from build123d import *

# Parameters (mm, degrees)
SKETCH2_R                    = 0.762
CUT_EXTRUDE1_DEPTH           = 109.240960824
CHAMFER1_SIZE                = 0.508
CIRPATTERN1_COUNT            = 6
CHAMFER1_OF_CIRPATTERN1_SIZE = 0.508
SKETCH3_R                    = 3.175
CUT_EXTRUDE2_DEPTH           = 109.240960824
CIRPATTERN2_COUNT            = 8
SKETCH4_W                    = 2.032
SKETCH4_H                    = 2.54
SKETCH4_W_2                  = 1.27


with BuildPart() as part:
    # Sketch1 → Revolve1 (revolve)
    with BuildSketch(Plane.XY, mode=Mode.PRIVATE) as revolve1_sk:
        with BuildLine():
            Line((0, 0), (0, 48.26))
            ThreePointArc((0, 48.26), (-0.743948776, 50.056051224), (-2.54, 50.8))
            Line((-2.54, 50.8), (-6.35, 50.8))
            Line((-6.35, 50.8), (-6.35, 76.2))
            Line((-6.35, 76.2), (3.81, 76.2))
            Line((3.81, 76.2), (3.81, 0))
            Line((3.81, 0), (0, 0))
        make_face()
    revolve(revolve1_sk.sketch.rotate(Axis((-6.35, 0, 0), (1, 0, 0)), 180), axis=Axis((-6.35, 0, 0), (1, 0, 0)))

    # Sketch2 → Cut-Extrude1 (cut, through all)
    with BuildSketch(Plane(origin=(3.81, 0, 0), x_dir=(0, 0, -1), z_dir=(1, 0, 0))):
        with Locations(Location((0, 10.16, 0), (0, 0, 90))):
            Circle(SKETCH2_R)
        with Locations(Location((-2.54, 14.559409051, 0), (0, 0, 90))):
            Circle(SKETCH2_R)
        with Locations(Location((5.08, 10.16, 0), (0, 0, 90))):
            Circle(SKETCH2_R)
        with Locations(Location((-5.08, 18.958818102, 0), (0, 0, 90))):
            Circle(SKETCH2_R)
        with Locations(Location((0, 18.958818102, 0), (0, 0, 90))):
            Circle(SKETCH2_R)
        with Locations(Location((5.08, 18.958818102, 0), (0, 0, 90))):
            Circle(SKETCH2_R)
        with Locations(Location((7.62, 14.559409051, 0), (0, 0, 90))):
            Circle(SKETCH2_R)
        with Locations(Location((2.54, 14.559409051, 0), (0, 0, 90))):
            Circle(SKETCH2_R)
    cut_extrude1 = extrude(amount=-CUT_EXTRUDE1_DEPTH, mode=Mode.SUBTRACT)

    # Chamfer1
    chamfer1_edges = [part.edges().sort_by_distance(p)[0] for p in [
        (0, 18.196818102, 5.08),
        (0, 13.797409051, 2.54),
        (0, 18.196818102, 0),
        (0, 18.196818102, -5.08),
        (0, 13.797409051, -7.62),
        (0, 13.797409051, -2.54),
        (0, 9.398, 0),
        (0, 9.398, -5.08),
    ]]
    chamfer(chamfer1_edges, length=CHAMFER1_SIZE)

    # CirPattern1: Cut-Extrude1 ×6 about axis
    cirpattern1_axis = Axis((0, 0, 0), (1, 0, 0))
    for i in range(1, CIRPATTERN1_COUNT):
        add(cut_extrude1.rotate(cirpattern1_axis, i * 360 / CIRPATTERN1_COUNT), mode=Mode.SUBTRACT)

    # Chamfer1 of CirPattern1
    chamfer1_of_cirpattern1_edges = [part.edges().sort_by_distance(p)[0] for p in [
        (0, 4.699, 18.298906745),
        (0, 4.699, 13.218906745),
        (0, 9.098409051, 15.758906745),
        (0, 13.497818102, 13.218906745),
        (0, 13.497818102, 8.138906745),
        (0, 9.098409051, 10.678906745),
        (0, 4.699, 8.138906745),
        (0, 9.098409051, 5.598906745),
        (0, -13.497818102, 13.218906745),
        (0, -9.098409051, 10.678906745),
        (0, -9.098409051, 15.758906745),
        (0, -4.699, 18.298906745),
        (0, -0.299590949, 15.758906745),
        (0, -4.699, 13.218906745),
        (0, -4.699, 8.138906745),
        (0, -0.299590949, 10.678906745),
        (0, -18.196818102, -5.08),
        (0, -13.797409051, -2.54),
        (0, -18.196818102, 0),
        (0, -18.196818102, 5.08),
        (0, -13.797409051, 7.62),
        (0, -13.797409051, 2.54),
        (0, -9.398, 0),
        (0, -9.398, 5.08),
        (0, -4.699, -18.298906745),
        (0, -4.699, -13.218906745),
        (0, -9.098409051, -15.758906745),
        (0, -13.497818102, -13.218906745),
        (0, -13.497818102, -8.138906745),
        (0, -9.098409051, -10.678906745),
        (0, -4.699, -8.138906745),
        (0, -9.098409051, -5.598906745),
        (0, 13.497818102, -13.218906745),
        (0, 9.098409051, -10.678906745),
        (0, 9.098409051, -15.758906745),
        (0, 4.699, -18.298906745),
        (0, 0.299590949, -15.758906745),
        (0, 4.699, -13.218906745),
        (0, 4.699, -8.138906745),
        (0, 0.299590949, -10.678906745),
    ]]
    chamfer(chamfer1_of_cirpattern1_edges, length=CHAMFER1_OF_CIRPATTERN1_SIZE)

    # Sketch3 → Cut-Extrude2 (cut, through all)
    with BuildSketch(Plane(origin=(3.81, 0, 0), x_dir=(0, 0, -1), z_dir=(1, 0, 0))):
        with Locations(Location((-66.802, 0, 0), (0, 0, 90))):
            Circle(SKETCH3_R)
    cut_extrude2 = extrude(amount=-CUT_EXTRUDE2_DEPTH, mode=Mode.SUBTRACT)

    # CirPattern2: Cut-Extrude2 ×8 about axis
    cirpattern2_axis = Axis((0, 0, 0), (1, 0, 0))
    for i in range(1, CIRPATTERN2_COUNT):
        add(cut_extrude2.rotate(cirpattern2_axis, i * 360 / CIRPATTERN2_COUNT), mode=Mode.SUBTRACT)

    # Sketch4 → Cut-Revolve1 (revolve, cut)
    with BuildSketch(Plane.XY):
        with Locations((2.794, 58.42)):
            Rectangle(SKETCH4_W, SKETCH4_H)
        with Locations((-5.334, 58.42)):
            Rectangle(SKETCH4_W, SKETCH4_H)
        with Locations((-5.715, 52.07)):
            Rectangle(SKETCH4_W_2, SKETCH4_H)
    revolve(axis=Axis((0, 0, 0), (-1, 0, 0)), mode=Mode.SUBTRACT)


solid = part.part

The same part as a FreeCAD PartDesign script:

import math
import FreeCAD as App
import Part
import Sketcher
Q = App.Units.Quantity


def edges_at(feature, points):
    """Names of the edges that pass closest to the given points."""
    edges = feature.Shape.Edges
    near = lambda p: min(range(len(edges)), key=lambda i: edges[i].distToShape(Part.Vertex(*p))[0])
    return sorted({f"Edge{near(p) + 1}" for p in points})


def add_polygon(sketch, points):
    """Adds a closed chain of lines whose ends are joined by coincident constraints."""
    first, n = sketch.GeometryCount, len(points)
    for a, b in zip(points, points[1:] + points[:1]):
        sketch.addGeometry(Part.LineSegment(App.Vector(*a, 0), App.Vector(*b, 0)), False)
    for i in range(n):
        sketch.addConstraint(Sketcher.Constraint("Coincident", first + i, 2, first + (i + 1) % n, 1))

doc = App.newDocument("Part")
body = doc.addObject("PartDesign::Body", "Body")

# Sketch on XY plane
sketch1 = body.newObject("Sketcher::SketchObject", "Sketch")
sketch1.AttachmentSupport = (doc.getObject("XY_Plane"), [""])
sketch1.MapMode = "FlatFace"
sketch1.addGeometry([
    Part.LineSegment(App.Vector(0, 48.3, 0), App.Vector(0, 0, 0)),  # 0
    Part.LineSegment(App.Vector(0, 0, 0), App.Vector(3.8, 0, 0)),  # 1
    Part.LineSegment(App.Vector(3.8, 0, 0), App.Vector(3.8, 76.2, 0)),  # 2
    Part.LineSegment(App.Vector(3.8, 76.2, 0), App.Vector(-6.3, 76.2, 0)),  # 3
    Part.LineSegment(App.Vector(-6.3, 76.2, 0), App.Vector(-6.3, 50.8, 0)),  # 4
    Part.LineSegment(App.Vector(-6.3, 50.8, 0), App.Vector(-2.5, 50.8, 0)),  # 5
    Part.ArcOfCircle(Part.Circle(App.Vector(-2.5, 48.3, 0), App.Vector(0, 0, 1), 2.5), math.radians(0), math.radians(90)),  # 6
], False)
sketch1.addConstraint([
    Sketcher.Constraint("Coincident", 0, 2, 1, 1),
    Sketcher.Constraint("Coincident", 1, 2, 2, 1),
    Sketcher.Constraint("Coincident", 2, 2, 3, 1),
    Sketcher.Constraint("Coincident", 3, 2, 4, 1),
    Sketcher.Constraint("Coincident", 4, 2, 5, 1),
    Sketcher.Constraint("Tangent", 5, 2, 6, 2),
    Sketcher.Constraint("Tangent", 6, 1, 0, 1),
    Sketcher.Constraint("Vertical", 0),
    Sketcher.Constraint("Horizontal", 1),
    Sketcher.Constraint("Vertical", 2),
    Sketcher.Constraint("Horizontal", 3),
    Sketcher.Constraint("Vertical", 4),
    Sketcher.Constraint("Horizontal", 5),
    Sketcher.Constraint("Coincident", 0, 2, -1, 1),
    Sketcher.Constraint("Equal", 1, 5),
    Sketcher.Constraint("Radius", 6, Q("0.1 in")),
    Sketcher.Constraint("DistanceY", 2, 1, 2, 2, Q("3 in")),
    Sketcher.Constraint("DistanceY", 4, 2, 4, 1, Q("1 in")),
    Sketcher.Constraint("DistanceX", 3, 2, 3, 1, Q("0.4 in")),
])
revolution = body.newObject("PartDesign::Revolution", "Revolution")
revolution.Profile = sketch1
revolution.ReferenceAxis = (sketch1, ["H_Axis"])
revolution.Angle = 360

# Sketch on YZ plane
sketch2 = body.newObject("Sketcher::SketchObject", "Sketch001")
sketch2.AttachmentSupport = (doc.getObject("YZ_Plane"), [""])
sketch2.MapMode = "FlatFace"
sketch2.AttachmentOffset = App.Placement(App.Vector(0, 0, 0.15 * 25.4), App.Rotation())
sketch2.addGeometry([
    Part.Circle(App.Vector(10.2, 0, 0), App.Vector(0, 0, 1), 0.8),  # 0
    Part.Circle(App.Vector(14.6, 2.5, 0), App.Vector(0, 0, 1), 0.8),  # 1
    Part.Circle(App.Vector(10.2, -5.1, 0), App.Vector(0, 0, 1), 0.8),  # 2
    Part.Circle(App.Vector(19, 5.1, 0), App.Vector(0, 0, 1), 0.8),  # 3
    Part.Circle(App.Vector(19, 0, 0), App.Vector(0, 0, 1), 0.8),  # 4
    Part.Circle(App.Vector(19, -5.1, 0), App.Vector(0, 0, 1), 0.8),  # 5
    Part.Circle(App.Vector(14.6, -7.6, 0), App.Vector(0, 0, 1), 0.8),  # 6
    Part.Circle(App.Vector(14.6, -2.5, 0), App.Vector(0, 0, 1), 0.8),  # 7
], False)
sketch2.addConstraint([
    Sketcher.Constraint("Equal", 0, 1),
    Sketcher.Constraint("Equal", 1, 2),
    Sketcher.Constraint("Equal", 2, 3),
    Sketcher.Constraint("Equal", 3, 4),
    Sketcher.Constraint("Equal", 4, 5),
    Sketcher.Constraint("Equal", 5, 6),
    Sketcher.Constraint("Equal", 6, 7),
    Sketcher.Constraint("Symmetric", 3, 3, 5, 3, -1),
    Sketcher.Constraint("Symmetric", 1, 3, 7, 3, -1),
    Sketcher.Constraint("PointOnObject", 0, 3, -1),
    Sketcher.Constraint("PointOnObject", 4, 3, -1),
    Sketcher.Constraint("Horizontal", 2, 3, 5, 3),
    Sketcher.Constraint("Vertical", 0, 3, 2, 3),
    Sketcher.Constraint("Vertical", 3, 3, 4, 3),
    Sketcher.Constraint("Vertical", 1, 3, 6, 3),
    Sketcher.Constraint("Diameter", 0, Q("0.06 in")),
    Sketcher.Constraint("DistanceX", -1, 1, 0, 3, Q("0.4 in")),
    Sketcher.Constraint("DistanceY", -1, 1, 1, 3, Q("0.1 in")),
    Sketcher.Constraint("DistanceY", 2, 3, -1, 1, Q("0.2 in")),
    Sketcher.Constraint("DistanceY", 6, 3, -1, 1, Q("0.3 in")),
    Sketcher.Constraint("DistanceX", -1, 1, 1, 3, Q("14.559409 mm")),
    Sketcher.Constraint("DistanceX", -1, 1, 3, 3, Q("18.958818 mm")),
])
pocket1 = body.newObject("PartDesign::Pocket", "Pocket")
pocket1.Profile = sketch2
pocket1.Type = "ThroughAll"
doc.recompute()

chamfer = body.newObject("PartDesign::Chamfer", "Chamfer")
chamfer.Base = (pocket1, edges_at(pocket1, [
    (0, 18.197, 5.08),
    (0, 13.797, 2.54),
    (0, 18.197, 0),
    (0, 18.197, -5.08),
    (0, 13.797, -7.62),
    (0, 13.797, -2.54),
    (0, 9.398, 0),
    (0, 9.398, -5.08),
]))
chamfer.Size = Q("0.02 in")
doc.recompute()

polarpattern = body.newObject("PartDesign::PolarPattern", "PolarPattern")
polarpattern.Originals = [pocket1]
polarpattern.Axis = (doc.getObject("X_Axis"), [""])
polarpattern.Angle = 360
polarpattern.Occurrences = 6
body.Tip = polarpattern
doc.recompute()

chamfer2 = body.newObject("PartDesign::Chamfer", "Chamfer001")
chamfer2.Base = (polarpattern, edges_at(polarpattern, [
    (0, 4.699, 18.299),
    (0, 4.699, 13.219),
    (0, 9.098, 15.759),
    (0, 13.498, 13.219),
    (0, 13.498, 8.139),
    (0, 9.098, 10.679),
    (0, 4.699, 8.139),
    (0, 9.098, 5.599),
    (0, -13.498, 13.219),
    (0, -9.098, 10.679),
    (0, -9.098, 15.759),
    (0, -4.699, 18.299),
    (0, -0.3, 15.759),
    (0, -4.699, 13.219),
    (0, -4.699, 8.139),
    (0, -0.3, 10.679),
    (0, -18.197, -5.08),
    (0, -13.797, -2.54),
    (0, -18.197, 0),
    (0, -18.197, 5.08),
    (0, -13.797, 7.62),
    (0, -13.797, 2.54),
    (0, -9.398, 0),
    (0, -9.398, 5.08),
    (0, -4.699, -18.299),
    (0, -4.699, -13.219),
    (0, -9.098, -15.759),
    (0, -13.498, -13.219),
    (0, -13.498, -8.139),
    (0, -9.098, -10.679),
    (0, -4.699, -8.139),
    (0, -9.098, -5.599),
    (0, 13.498, -13.219),
    (0, 9.098, -10.679),
    (0, 9.098, -15.759),
    (0, 4.699, -18.299),
    (0, 0.3, -15.759),
    (0, 4.699, -13.219),
    (0, 4.699, -8.139),
    (0, 0.3, -10.679),
]))
chamfer2.Size = Q("0.02 in")

# Sketch on YZ plane
sketch3 = body.newObject("Sketcher::SketchObject", "Sketch002")
sketch3.AttachmentSupport = (doc.getObject("YZ_Plane"), [""])
sketch3.MapMode = "FlatFace"
sketch3.AttachmentOffset = App.Placement(App.Vector(0, 0, 0.15 * 25.4), App.Rotation())
sketch3.addGeometry(Part.Circle(App.Vector(0, 66.8, 0), App.Vector(0, 0, 1), 3.2), False)
sketch3.addConstraint([
    Sketcher.Constraint("PointOnObject", 0, 3, -2),
    Sketcher.Constraint("Diameter", 0, Q("0.25 in")),
    Sketcher.Constraint("DistanceY", -1, 1, 0, 3, Q("2.63 in")),
])
pocket2 = body.newObject("PartDesign::Pocket", "Pocket001")
pocket2.Profile = sketch3
pocket2.Type = "ThroughAll"
doc.recompute()

polarpattern2 = body.newObject("PartDesign::PolarPattern", "PolarPattern001")
polarpattern2.Originals = [pocket2]
polarpattern2.Axis = (doc.getObject("X_Axis"), [""])
polarpattern2.Angle = 360
polarpattern2.Occurrences = 8
body.Tip = polarpattern2

# Sketch on XY plane
sketch4 = body.newObject("Sketcher::SketchObject", "Sketch003")
sketch4.AttachmentSupport = (doc.getObject("XY_Plane"), [""])
sketch4.MapMode = "FlatFace"
add_polygon(sketch4, [(1.8, 59.7), (1.8, 57.1), (3.8, 57.1), (3.8, 59.7)])  # lines 0-3
add_polygon(sketch4, [(-6.3, 59.7), (-6.3, 57.1), (-4.3, 57.1), (-4.3, 59.7)])  # lines 4-7
add_polygon(sketch4, [(-6.3, 53.3), (-6.3, 50.8), (-5.1, 50.8), (-5.1, 53.3)])  # lines 8-11
sketch4.addConstraint([
    Sketcher.Constraint("Vertical", 0),
    Sketcher.Constraint("Horizontal", 1),
    Sketcher.Constraint("Vertical", 2),
    Sketcher.Constraint("Horizontal", 3),
    Sketcher.Constraint("Vertical", 4),
    Sketcher.Constraint("Horizontal", 5),
    Sketcher.Constraint("Vertical", 6),
    Sketcher.Constraint("Horizontal", 7),
    Sketcher.Constraint("Vertical", 8),
    Sketcher.Constraint("Horizontal", 9),
    Sketcher.Constraint("Vertical", 10),
    Sketcher.Constraint("Horizontal", 11),
    Sketcher.Constraint("Horizontal", 1, 2, 4, 2),
    Sketcher.Constraint("Horizontal", 3, 2, 6, 2),
    Sketcher.Constraint("Vertical", 7, 2, 8, 2),
    Sketcher.Constraint("Equal", 3, 5),
    Sketcher.Constraint("Equal", 6, 8),
    Sketcher.Constraint("DistanceY", 0, 2, 0, 1, Q("0.1 in")),
    Sketcher.Constraint("DistanceY", -1, 1, 8, 2, Q("2 in")),
    Sketcher.Constraint("DistanceX", 1, 1, 1, 2, Q("0.08 in")),
    Sketcher.Constraint("DistanceX", 9, 1, 9, 2, Q("0.05 in")),
    Sketcher.Constraint("DistanceX", 9, 2, -1, 1, Q("0.2 in")),
    Sketcher.Constraint("DistanceX", 4, 2, 1, 2, Q("0.4 in")),
    Sketcher.Constraint("DistanceY", -1, 1, 0, 2, Q("2.25 in")),
])
groove = body.newObject("PartDesign::Groove", "Groove")
groove.Profile = sketch4
groove.ReferenceAxis = (sketch4, ["H_Axis"])
groove.Angle = 360

doc.recompute()
